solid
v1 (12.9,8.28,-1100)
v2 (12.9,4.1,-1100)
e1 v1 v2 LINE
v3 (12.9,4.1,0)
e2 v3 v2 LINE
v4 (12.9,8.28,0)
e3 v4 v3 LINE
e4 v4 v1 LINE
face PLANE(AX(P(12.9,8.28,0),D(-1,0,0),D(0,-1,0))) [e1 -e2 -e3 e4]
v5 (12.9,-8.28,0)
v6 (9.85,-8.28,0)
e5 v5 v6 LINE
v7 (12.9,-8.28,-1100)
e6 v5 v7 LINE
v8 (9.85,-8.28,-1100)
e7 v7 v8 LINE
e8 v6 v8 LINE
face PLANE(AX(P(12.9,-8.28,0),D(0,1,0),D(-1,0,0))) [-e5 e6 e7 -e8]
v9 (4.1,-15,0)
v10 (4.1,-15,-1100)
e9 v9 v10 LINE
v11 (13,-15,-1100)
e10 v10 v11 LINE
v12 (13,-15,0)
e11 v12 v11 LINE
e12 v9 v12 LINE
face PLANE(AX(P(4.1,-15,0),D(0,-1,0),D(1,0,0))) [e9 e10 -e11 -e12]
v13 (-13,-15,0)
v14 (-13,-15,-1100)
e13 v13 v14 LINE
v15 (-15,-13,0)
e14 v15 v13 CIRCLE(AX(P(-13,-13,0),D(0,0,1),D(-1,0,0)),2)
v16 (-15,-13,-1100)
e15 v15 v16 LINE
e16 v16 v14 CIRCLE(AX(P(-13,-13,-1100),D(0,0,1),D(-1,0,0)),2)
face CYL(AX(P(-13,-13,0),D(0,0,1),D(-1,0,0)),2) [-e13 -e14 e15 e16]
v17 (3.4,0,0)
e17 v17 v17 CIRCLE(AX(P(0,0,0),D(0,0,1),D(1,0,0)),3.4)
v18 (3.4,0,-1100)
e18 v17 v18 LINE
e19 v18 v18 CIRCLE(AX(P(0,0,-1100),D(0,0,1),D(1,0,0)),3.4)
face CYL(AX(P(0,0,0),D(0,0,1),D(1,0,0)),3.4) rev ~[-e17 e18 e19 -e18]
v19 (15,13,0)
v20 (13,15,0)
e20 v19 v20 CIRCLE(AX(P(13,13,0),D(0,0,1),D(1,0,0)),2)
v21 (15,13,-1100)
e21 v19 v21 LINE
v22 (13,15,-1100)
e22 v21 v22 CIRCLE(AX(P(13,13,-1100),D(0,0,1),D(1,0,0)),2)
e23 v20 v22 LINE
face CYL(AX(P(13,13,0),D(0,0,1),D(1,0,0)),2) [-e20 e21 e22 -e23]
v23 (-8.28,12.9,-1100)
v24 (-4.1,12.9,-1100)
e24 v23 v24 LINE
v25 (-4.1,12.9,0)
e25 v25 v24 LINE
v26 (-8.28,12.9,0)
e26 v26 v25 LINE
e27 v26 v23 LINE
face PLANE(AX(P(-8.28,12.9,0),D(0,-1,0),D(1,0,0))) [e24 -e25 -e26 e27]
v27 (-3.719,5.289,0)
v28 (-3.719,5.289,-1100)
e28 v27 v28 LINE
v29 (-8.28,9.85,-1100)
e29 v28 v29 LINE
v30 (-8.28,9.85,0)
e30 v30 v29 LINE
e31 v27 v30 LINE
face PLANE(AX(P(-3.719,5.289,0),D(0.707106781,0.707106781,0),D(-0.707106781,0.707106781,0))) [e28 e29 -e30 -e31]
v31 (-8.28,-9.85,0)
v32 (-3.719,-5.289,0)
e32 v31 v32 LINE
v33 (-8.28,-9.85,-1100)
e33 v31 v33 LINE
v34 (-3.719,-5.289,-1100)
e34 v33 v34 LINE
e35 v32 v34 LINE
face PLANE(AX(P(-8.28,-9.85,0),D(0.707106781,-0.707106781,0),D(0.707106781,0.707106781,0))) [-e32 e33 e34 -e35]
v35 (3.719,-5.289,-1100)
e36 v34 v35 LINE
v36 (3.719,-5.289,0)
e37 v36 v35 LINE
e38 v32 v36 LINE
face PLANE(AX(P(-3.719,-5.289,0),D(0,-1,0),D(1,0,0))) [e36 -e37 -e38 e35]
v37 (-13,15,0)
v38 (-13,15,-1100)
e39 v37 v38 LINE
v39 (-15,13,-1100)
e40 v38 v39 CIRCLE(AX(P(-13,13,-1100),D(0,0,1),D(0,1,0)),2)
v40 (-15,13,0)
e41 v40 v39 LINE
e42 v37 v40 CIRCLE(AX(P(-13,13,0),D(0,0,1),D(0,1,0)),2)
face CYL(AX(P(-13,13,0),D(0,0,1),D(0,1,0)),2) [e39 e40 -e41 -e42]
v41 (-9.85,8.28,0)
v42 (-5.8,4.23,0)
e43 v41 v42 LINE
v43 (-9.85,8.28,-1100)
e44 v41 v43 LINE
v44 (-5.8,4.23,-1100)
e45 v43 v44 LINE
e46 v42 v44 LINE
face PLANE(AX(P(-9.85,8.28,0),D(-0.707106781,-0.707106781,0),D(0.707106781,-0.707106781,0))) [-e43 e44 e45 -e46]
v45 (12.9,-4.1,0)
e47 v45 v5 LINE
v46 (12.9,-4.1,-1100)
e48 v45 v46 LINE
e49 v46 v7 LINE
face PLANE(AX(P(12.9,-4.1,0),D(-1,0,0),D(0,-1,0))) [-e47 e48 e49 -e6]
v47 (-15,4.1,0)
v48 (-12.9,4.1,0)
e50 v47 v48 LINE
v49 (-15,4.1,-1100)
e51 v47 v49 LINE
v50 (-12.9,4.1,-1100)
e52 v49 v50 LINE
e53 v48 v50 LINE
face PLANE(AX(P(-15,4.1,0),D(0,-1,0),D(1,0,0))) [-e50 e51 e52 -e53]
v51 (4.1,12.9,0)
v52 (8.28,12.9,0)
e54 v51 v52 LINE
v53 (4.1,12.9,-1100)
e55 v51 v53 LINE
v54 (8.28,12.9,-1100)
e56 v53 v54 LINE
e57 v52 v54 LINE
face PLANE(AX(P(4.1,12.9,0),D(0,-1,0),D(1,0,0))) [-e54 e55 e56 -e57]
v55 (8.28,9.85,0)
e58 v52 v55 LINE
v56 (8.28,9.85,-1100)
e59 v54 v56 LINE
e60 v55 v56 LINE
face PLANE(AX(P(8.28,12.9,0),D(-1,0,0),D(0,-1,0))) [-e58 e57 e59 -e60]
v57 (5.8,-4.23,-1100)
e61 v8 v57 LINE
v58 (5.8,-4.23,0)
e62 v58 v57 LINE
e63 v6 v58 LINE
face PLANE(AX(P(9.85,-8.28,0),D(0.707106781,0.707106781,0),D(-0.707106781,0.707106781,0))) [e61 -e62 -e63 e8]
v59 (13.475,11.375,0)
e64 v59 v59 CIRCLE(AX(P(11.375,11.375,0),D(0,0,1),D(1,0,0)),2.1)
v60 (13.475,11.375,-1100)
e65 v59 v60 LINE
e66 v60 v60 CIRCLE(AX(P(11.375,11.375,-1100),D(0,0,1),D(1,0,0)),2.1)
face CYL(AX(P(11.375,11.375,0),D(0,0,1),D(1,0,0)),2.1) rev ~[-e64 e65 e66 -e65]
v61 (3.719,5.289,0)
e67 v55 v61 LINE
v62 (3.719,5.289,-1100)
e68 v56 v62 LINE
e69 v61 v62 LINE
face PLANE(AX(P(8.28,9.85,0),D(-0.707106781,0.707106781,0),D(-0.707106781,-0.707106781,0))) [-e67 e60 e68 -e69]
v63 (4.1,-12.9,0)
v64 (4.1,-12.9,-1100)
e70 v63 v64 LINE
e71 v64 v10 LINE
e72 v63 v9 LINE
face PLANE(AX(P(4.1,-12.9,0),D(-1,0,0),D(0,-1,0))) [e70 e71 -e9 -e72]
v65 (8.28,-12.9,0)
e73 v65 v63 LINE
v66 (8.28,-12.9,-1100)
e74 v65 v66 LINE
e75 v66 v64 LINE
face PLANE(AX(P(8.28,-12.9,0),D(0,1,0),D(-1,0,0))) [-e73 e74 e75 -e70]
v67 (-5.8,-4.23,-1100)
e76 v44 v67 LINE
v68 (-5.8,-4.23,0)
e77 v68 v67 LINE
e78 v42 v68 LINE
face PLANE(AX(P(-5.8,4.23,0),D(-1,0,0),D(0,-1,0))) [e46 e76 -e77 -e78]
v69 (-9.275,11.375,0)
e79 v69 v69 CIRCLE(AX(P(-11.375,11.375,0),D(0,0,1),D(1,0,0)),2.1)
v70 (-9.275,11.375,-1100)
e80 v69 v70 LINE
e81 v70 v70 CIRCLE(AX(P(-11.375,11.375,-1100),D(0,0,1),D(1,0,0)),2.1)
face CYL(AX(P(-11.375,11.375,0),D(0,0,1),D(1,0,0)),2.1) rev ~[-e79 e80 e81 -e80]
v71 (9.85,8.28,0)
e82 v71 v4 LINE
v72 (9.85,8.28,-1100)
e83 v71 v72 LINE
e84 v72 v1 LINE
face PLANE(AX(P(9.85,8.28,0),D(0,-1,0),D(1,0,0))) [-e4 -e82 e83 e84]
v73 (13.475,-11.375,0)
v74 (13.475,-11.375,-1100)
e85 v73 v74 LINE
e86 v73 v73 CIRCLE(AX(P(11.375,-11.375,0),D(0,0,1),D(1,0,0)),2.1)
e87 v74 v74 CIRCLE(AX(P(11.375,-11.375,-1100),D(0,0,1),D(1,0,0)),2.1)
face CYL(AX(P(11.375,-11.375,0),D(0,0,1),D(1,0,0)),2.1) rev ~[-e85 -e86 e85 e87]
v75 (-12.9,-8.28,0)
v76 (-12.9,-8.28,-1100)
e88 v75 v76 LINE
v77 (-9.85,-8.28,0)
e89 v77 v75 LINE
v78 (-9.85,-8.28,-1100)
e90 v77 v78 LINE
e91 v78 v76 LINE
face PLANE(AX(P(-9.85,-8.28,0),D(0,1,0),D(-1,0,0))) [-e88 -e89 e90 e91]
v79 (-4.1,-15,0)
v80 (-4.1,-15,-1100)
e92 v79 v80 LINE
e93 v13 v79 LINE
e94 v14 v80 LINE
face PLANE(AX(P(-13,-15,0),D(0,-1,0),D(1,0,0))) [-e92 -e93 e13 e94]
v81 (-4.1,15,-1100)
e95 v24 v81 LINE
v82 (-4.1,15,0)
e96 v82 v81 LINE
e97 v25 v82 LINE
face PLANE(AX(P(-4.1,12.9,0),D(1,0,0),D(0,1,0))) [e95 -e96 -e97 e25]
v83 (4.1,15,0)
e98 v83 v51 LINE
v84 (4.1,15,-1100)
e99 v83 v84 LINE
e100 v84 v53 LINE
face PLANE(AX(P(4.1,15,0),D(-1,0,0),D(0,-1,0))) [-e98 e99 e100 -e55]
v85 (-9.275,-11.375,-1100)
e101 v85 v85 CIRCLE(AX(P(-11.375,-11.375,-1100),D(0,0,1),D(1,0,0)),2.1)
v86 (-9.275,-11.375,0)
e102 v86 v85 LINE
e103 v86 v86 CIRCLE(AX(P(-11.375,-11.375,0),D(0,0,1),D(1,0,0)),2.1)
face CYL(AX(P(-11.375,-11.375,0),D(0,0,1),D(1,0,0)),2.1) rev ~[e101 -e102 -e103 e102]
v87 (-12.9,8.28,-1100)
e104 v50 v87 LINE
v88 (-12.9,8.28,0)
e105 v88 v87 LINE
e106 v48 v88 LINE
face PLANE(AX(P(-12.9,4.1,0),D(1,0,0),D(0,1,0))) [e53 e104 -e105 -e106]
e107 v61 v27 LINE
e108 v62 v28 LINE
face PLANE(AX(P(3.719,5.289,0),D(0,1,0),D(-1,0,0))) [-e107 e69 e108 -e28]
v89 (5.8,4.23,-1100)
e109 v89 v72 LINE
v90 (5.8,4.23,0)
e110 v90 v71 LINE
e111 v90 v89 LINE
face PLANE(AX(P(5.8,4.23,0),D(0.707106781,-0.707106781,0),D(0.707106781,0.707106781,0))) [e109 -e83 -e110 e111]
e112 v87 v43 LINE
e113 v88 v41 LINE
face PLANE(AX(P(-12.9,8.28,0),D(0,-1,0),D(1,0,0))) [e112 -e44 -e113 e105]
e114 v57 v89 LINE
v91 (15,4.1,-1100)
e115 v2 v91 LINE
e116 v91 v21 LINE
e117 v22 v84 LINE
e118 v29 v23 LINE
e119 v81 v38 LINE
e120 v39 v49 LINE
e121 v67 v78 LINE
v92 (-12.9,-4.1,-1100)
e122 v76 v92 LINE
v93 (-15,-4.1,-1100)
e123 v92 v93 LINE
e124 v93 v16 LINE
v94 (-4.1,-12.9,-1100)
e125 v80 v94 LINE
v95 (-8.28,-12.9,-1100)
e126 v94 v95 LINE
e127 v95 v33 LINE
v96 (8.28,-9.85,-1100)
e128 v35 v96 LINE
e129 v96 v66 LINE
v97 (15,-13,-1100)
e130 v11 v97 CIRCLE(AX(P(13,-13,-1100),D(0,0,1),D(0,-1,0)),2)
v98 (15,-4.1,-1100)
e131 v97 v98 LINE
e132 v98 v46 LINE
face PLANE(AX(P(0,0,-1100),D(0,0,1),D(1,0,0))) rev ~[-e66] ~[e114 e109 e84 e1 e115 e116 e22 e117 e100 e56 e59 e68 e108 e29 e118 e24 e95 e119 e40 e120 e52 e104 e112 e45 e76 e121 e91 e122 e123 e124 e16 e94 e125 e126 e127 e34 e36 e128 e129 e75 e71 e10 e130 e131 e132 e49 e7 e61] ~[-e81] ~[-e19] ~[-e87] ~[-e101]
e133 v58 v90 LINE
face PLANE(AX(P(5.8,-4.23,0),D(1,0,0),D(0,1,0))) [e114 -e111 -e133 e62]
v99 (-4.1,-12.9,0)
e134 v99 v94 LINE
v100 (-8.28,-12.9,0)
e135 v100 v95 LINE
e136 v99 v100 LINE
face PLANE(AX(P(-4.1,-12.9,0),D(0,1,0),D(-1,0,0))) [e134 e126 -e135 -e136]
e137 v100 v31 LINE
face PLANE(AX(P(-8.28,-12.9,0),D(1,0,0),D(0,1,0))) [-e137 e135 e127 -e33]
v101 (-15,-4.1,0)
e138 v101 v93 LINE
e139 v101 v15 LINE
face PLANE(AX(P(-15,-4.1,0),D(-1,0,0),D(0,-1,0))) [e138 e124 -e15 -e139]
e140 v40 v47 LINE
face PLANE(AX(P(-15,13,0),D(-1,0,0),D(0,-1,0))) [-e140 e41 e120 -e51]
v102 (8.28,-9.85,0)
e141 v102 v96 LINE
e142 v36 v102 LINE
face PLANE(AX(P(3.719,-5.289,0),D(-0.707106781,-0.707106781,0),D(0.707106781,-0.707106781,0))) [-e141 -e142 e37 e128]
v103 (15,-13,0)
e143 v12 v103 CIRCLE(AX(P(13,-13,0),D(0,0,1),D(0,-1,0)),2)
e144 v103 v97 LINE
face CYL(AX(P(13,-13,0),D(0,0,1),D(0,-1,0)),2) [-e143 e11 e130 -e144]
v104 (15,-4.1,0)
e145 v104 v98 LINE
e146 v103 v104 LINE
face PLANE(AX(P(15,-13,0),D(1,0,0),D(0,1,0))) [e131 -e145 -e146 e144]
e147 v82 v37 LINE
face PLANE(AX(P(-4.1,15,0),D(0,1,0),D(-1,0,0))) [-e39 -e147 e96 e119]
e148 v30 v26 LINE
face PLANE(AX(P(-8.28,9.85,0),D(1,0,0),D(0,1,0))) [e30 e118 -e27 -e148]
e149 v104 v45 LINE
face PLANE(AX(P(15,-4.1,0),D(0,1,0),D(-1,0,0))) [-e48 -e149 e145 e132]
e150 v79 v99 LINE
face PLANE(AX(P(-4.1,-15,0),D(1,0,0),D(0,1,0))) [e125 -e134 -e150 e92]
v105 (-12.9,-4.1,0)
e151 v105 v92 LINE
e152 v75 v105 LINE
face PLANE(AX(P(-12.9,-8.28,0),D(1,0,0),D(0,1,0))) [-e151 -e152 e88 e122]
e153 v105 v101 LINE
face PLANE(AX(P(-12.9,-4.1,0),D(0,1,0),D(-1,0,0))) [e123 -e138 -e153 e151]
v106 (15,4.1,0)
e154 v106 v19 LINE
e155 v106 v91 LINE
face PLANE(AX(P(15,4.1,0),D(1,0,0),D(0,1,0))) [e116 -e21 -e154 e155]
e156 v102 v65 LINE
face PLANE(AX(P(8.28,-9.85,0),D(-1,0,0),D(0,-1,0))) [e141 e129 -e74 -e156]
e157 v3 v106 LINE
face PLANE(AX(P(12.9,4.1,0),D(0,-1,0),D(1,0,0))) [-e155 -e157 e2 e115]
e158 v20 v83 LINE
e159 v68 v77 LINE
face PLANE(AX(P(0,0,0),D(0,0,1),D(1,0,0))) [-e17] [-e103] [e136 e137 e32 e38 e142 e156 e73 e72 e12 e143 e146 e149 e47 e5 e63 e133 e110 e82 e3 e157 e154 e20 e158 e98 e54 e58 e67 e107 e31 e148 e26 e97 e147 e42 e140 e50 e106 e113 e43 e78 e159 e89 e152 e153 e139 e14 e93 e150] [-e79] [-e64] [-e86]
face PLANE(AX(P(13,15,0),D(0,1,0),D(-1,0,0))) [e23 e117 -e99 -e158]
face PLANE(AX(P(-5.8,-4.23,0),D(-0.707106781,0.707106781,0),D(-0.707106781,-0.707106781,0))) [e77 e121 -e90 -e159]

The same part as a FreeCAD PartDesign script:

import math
import FreeCAD as App
import Part
import Sketcher
from FreeCAD import Vector

doc = App.newDocument("Part")
params = doc.addObject("Spreadsheet::Sheet", "Params")
for row, (alias, value) in enumerate([
    ("sketch1_radius", "2 mm"),
    ("sketch1_diameter", "4.2 mm"),
    ("sketch1_diameter2", "6.8 mm"),
    ("sketch1_width", "2.1 mm"),
    ("sketch1_width2", "8.9 mm"),
    ("pad1_length", "1100 mm"),
], start=1):
    params.set(f"A{row}", alias)
    params.set(f"B{row}", "=" + value)
    params.setAlias(f"B{row}", alias)

body = doc.addObject("PartDesign::Body", "Body")

# Sketch on XY plane
sketch1 = body.newObject("Sketcher::SketchObject", "Sketch")
sketch1.AttachmentSupport = (doc.getObject("XY_Plane"), [""])
sketch1.MapMode = "FlatFace"
sketch1.addGeometry([
    Part.LineSegment(Vector(-15, 13, 0), Vector(-15, 4.1, 0)),  # 0
    Part.LineSegment(Vector(-15, 4.1, 0), Vector(-12.9, 4.1, 0)),  # 1
    Part.LineSegment(Vector(-12.9, 4.1, 0), Vector(-12.9, 8.3, 0)),  # 2
    Part.LineSegment(Vector(-12.9, 8.3, 0), Vector(-9.8, 8.3, 0)),  # 3
    Part.LineSegment(Vector(-9.8, 8.3, 0), Vector(-5.8, 4.2, 0)),  # 4
    Part.LineSegment(Vector(-5.8, 4.2, 0), Vector(-5.8, -4.2, 0)),  # 5
    Part.LineSegment(Vector(-5.8, -4.2, 0), Vector(-9.8, -8.3, 0)),  # 6
    Part.LineSegment(Vector(-9.8, -8.3, 0), Vector(-12.9, -8.3, 0)),  # 7
    Part.LineSegment(Vector(-12.9, -8.3, 0), Vector(-12.9, -4.1, 0)),  # 8
    Part.LineSegment(Vector(-12.9, -4.1, 0), Vector(-15, -4.1, 0)),  # 9
    Part.LineSegment(Vector(-15, -4.1, 0), Vector(-15, -13, 0)),  # 10
    Part.ArcOfCircle(Part.Circle(Vector(-13, -13, 0), Vector(0, 0, 1), 2), math.radians(180), math.radians(270)),  # 11
    Part.LineSegment(Vector(-13, -15, 0), Vector(-4.1, -15, 0)),  # 12
    Part.LineSegment(Vector(-4.1, -15, 0), Vector(-4.1, -12.9, 0)),  # 13
    Part.LineSegment(Vector(-4.1, -12.9, 0), Vector(-8.3, -12.9, 0)),  # 14
    Part.LineSegment(Vector(-8.3, -12.9, 0), Vector(-8.3, -9.8, 0)),  # 15
    Part.LineSegment(Vector(-8.3, -9.8, 0), Vector(-3.7, -5.3, 0)),  # 16
    Part.LineSegment(Vector(-3.7, -5.3, 0), Vector(3.7, -5.3, 0)),  # 17
    Part.LineSegment(Vector(3.7, -5.3, 0), Vector(8.3, -9.8, 0)),  # 18
    Part.LineSegment(Vector(8.3, -9.8, 0), Vector(8.3, -12.9, 0)),  # 19
    Part.LineSegment(Vector(8.3, -12.9, 0), Vector(4.1, -12.9, 0)),  # 20
    Part.LineSegment(Vector(4.1, -12.9, 0), Vector(4.1, -15, 0)),  # 21
    Part.LineSegment(Vector(4.1, -15, 0), Vector(13, -15, 0)),  # 22
    Part.ArcOfCircle(Part.Circle(Vector(13, -13, 0), Vector(0, 0, 1), 2), math.radians(-90), math.radians(0)),  # 23
    Part.LineSegment(Vector(15, -13, 0), Vector(15, -4.1, 0)),  # 24
    Part.LineSegment(Vector(15, -4.1, 0), Vector(12.9, -4.1, 0)),  # 25
    Part.LineSegment(Vector(12.9, -4.1, 0), Vector(12.9, -8.3, 0)),  # 26
    Part.LineSegment(Vector(12.9, -8.3, 0), Vector(9.8, -8.3, 0)),  # 27
    Part.LineSegment(Vector(9.8, -8.3, 0), Vector(5.8, -4.2, 0)),  # 28
    Part.LineSegment(Vector(5.8, -4.2, 0), Vector(5.8, 4.2, 0)),  # 29
    Part.LineSegment(Vector(5.8, 4.2, 0), Vector(9.8, 8.3, 0)),  # 30
    Part.LineSegment(Vector(9.8, 8.3, 0), Vector(12.9, 8.3, 0)),  # 31
    Part.LineSegment(Vector(12.9, 8.3, 0), Vector(12.9, 4.1, 0)),  # 32
    Part.LineSegment(Vector(12.9, 4.1, 0), Vector(15, 4.1, 0)),  # 33
    Part.LineSegment(Vector(15, 4.1, 0), Vector(15, 13, 0)),  # 34
    Part.ArcOfCircle(Part.Circle(Vector(13, 13, 0), Vector(0, 0, 1), 2), math.radians(0), math.radians(90)),  # 35
    Part.LineSegment(Vector(13, 15, 0), Vector(4.1, 15, 0)),  # 36
    Part.LineSegment(Vector(4.1, 15, 0), Vector(4.1, 12.9, 0)),  # 37
    Part.LineSegment(Vector(4.1, 12.9, 0), Vector(8.3, 12.9, 0)),  # 38
    Part.LineSegment(Vector(8.3, 12.9, 0), Vector(8.3, 9.8, 0)),  # 39
    Part.LineSegment(Vector(8.3, 9.8, 0), Vector(3.7, 5.3, 0)),  # 40
    Part.LineSegment(Vector(3.7, 5.3, 0), Vector(-3.7, 5.3, 0)),  # 41
    Part.LineSegment(Vector(-3.7, 5.3, 0), Vector(-8.3, 9.8, 0)),  # 42
    Part.LineSegment(Vector(-8.3, 9.8, 0), Vector(-8.3, 12.9, 0)),  # 43
    Part.LineSegment(Vector(-8.3, 12.9, 0), Vector(-4.1, 12.9, 0)),  # 44
    Part.LineSegment(Vector(-4.1, 12.9, 0), Vector(-4.1, 15, 0)),  # 45
    Part.LineSegment(Vector(-4.1, 15, 0), Vector(-13, 15, 0)),  # 46
    Part.ArcOfCircle(Part.Circle(Vector(-13, 13, 0), Vector(0, 0, 1), 2), math.radians(90), math.radians(180)),  # 47
    Part.Circle(Vector(-11.4, -11.4, 0), Vector(0, 0, 1), 2.1),  # 48
    Part.Circle(Vector(11.4, -11.4, 0), Vector(0, 0, 1), 2.1),  # 49
    Part.Circle(Vector(-11.4, 11.4, 0), Vector(0, 0, 1), 2.1),  # 50
    Part.Circle(Vector(0, 0, 0), Vector(0, 0, 1), 3.4),  # 51
    Part.Circle(Vector(11.4, 11.4, 0), Vector(0, 0, 1), 2.1),  # 52
], False)
sketch1.addConstraint([
    Sketcher.Constraint("Coincident", 0, 2, 1, 1),
    Sketcher.Constraint("Coincident", 1, 2, 2, 1),
    Sketcher.Constraint("Coincident", 2, 2, 3, 1),
    Sketcher.Constraint("Coincident", 3, 2, 4, 1),
    Sketcher.Constraint("Coincident", 4, 2, 5, 1),
    Sketcher.Constraint("Coincident", 5, 2, 6, 1),
    Sketcher.Constraint("Coincident", 6, 2, 7, 1),
    Sketcher.Constraint("Coincident", 7, 2, 8, 1),
    Sketcher.Constraint("Coincident", 8, 2, 9, 1),
    Sketcher.Constraint("Coincident", 9, 2, 10, 1),
    Sketcher.Constraint("Tangent", 10, 2, 11, 1),
    Sketcher.Constraint("Tangent", 11, 2, 12, 1),
    Sketcher.Constraint("Coincident", 12, 2, 13, 1),
    Sketcher.Constraint("Coincident", 13, 2, 14, 1),
    Sketcher.Constraint("Coincident", 14, 2, 15, 1),
    Sketcher.Constraint("Coincident", 15, 2, 16, 1),
    Sketcher.Constraint("Coincident", 16, 2, 17, 1),
    Sketcher.Constraint("Coincident", 17, 2, 18, 1),
    Sketcher.Constraint("Coincident", 18, 2, 19, 1),
    Sketcher.Constraint("Coincident", 19, 2, 20, 1),
    Sketcher.Constraint("Coincident", 20, 2, 21, 1),
    Sketcher.Constraint("Coincident", 21, 2, 22, 1),
    Sketcher.Constraint("Tangent", 22, 2, 23, 1),
    Sketcher.Constraint("Tangent", 23, 2, 24, 1),
    Sketcher.Constraint("Coincident", 24, 2, 25, 1),
    Sketcher.Constraint("Coincident", 25, 2, 26, 1),
    Sketcher.Constraint("Coincident", 26, 2, 27, 1),
    Sketcher.Constraint("Coincident", 27, 2, 28, 1),
    Sketcher.Constraint("Coincident", 28, 2, 29, 1),
    Sketcher.Constraint("Coincident", 29, 2, 30, 1),
    Sketcher.Constraint("Coincident", 30, 2, 31, 1),
    Sketcher.Constraint("Coincident", 31, 2, 32, 1),
    Sketcher.Constraint("Coincident", 32, 2, 33, 1),
    Sketcher.Constraint("Coincident", 33, 2, 34, 1),
    Sketcher.Constraint("Tangent", 34, 2, 35, 1),
    Sketcher.Constraint("Tangent", 35, 2, 36, 1),
    Sketcher.Constraint("Coincident", 36, 2, 37, 1),
    Sketcher.Constraint("Coincident", 37, 2, 38, 1),
    Sketcher.Constraint("Coincident", 38, 2, 39, 1),
    Sketcher.Constraint("Coincident", 39, 2, 40, 1),
    Sketcher.Constraint("Coincident", 40, 2, 41, 1),
    Sketcher.Constraint("Coincident", 41, 2, 42, 1),
    Sketcher.Constraint("Coincident", 42, 2, 43, 1),
    Sketcher.Constraint("Coincident", 43, 2, 44, 1),
    Sketcher.Constraint("Coincident", 44, 2, 45, 1),
    Sketcher.Constraint("Coincident", 45, 2, 46, 1),
    Sketcher.Constraint("Tangent", 46, 2, 47, 1),
    Sketcher.Constraint("Tangent", 47, 2, 0, 1),
    Sketcher.Constraint("Vertical", 0),
    Sketcher.Constraint("Horizontal", 1),
    Sketcher.Constraint("Vertical", 2),
    Sketcher.Constraint("Horizontal", 3),
    Sketcher.Constraint("Vertical", 5),
    Sketcher.Constraint("Horizontal", 7),
    Sketcher.Constraint("Vertical", 8),
    Sketcher.Constraint("Horizontal", 9),
    Sketcher.Constraint("Vertical", 10),
    Sketcher.Constraint("Horizontal", 12),
    Sketcher.Constraint("Vertical", 13),
    Sketcher.Constraint("Horizontal", 14),
    Sketcher.Constraint("Vertical", 15),
    Sketcher.Constraint("Horizontal", 17),
    Sketcher.Constraint("Vertical", 19),
    Sketcher.Constraint("Horizontal", 20),
    Sketcher.Constraint("Vertical", 21),
    Sketcher.Constraint("Horizontal", 22),
    Sketcher.Constraint("Vertical", 24),
    Sketcher.Constraint("Horizontal", 25),
    Sketcher.Constraint("Vertical", 26),
    Sketcher.Constraint("Horizontal", 27),
    Sketcher.Constraint("Vertical", 29),
    Sketcher.Constraint("Horizontal", 31),
    Sketcher.Constraint("Vertical", 32),
    Sketcher.Constraint("Horizontal", 33),
    Sketcher.Constraint("Vertical", 34),
    Sketcher.Constraint("Horizontal", 36),
    Sketcher.Constraint("Vertical", 37),
    Sketcher.Constraint("Horizontal", 38),
    Sketcher.Constraint("Vertical", 39),
    Sketcher.Constraint("Horizontal", 41),
    Sketcher.Constraint("Vertical", 43),
    Sketcher.Constraint("Horizontal", 44),
    Sketcher.Constraint("Vertical", 45),
    Sketcher.Constraint("Horizontal", 46),
    Sketcher.Constraint("Coincident", 51, 3, -1, 1),
    Sketcher.Constraint("Equal", 11, 23),
    Sketcher.Constraint("Equal", 23, 35),
    Sketcher.Constraint("Equal", 35, 47),
    Sketcher.Constraint("Equal", 48, 49),
    Sketcher.Constraint("Equal", 49, 50),
    Sketcher.Constraint("Equal", 50, 52),
    Sketcher.Constraint("Symmetric", 11, 3, 35, 3, -1, 1),
    Sketcher.Constraint("Symmetric", 23, 3, 47, 3, -1, 1),
    Sketcher.Constraint("Symmetric", 49, 3, 50, 3, -1, 1),
    Sketcher.Constraint("Symmetric", 48, 3, 52, 3, -1, 1),
    Sketcher.Constraint("Symmetric", 1, 2, 25, 2, -1, 1),
    Sketcher.Constraint("Symmetric", 3, 2, 27, 2, -1, 1),
    Sketcher.Constraint("Symmetric", 4, 2, 28, 2, -1, 1),
    Sketcher.Constraint("Symmetric", 6, 2, 30, 2, -1, 1),
    Sketcher.Constraint("Symmetric", 8, 2, 32, 2, -1, 1),
    Sketcher.Constraint("Symmetric", 13, 2, 37, 2, -1, 1),
    Sketcher.Constraint("Symmetric", 15, 2, 39, 2, -1, 1),
    Sketcher.Constraint("Symmetric", 16, 2, 40, 2, -1, 1),
    Sketcher.Constraint("Symmetric", 18, 2, 42, 2, -1, 1),
    Sketcher.Constraint("Symmetric", 20, 2, 44, 2, -1, 1),
    Sketcher.Constraint("Symmetric", 11, 3, 23, 3, -2),
    Sketcher.Constraint("Symmetric", 48, 3, 49, 3, -2),
    Sketcher.Constraint("Symmetric", 15, 2, 18, 2, -2),
    Sketcher.Constraint("Symmetric", 13, 2, 20, 2, -2),
    Sketcher.Constraint("Symmetric", 8, 2, 25, 2, -2),
    Sketcher.Constraint("Symmetric", 6, 2, 27, 2, -2),
    Sketcher.Constraint("Perpendicular", 4, 6),
    Sketcher.Constraint("Parallel", 6, 16),
    Sketcher.Constraint("Perpendicular", 16, 18),
    Sketcher.Constraint("Perpendicular", 28, 30),
    Sketcher.Constraint("Perpendicular", 40, 42),
    Sketcher.Constraint("Horizontal", 5, 2, 28, 2),
    Sketcher.Constraint("Equal", 46, 0),
    Sketcher.Constraint("Equal", 44, 2),
    Sketcher.Constraint("Equal", 33, 13),
    Sketcher.Constraint("Equal", 31, 15),
    Sketcher.Constraint("Radius", 11, 2.0),
    Sketcher.Constraint("Diameter", 48, 4.2),
    Sketcher.Constraint("Diameter", 51, 6.8),
    Sketcher.Constraint("DistanceX", 1, 1, 1, 2, 2.1),
    Sketcher.Constraint("DistanceX", 12, 1, 12, 2, 8.9),
    Sketcher.Constraint("DistanceX", 11, 3, -1, 1, 13.0),
    Sketcher.Constraint("DistanceY", 11, 3, -1, 1, 13.0),
    Sketcher.Constraint("DistanceX", 3, 1, 3, 2, 3.05),
    Sketcher.Constraint("DistanceX", 14, 2, 14, 1, 4.18),
    Sketcher.Constraint("DistanceY", 5, 2, 5, 1, 8.46),
    Sketcher.Constraint("DistanceX", 17, 1, 17, 2, 7.438),
    Sketcher.Constraint("DistanceX", 48, 3, 49, 3, 22.75),
    Sketcher.Constraint("DistanceY", 48, 3, 50, 3, 22.75),
])
sketch1.setExpression("Constraints[121]", "Params.sketch1_radius")
sketch1.setExpression("Constraints[122]", "Params.sketch1_diameter")
sketch1.setExpression("Constraints[123]", "Params.sketch1_diameter2")
sketch1.setExpression("Constraints[124]", "Params.sketch1_width")
sketch1.setExpression("Constraints[125]", "Params.sketch1_width2")
pad1 = body.newObject("PartDesign::Pad", "Pad")
pad1.Profile = sketch1
pad1.setExpression("Length", "Params.pad1_length")
pad1.Reversed = True

doc.recompute()
